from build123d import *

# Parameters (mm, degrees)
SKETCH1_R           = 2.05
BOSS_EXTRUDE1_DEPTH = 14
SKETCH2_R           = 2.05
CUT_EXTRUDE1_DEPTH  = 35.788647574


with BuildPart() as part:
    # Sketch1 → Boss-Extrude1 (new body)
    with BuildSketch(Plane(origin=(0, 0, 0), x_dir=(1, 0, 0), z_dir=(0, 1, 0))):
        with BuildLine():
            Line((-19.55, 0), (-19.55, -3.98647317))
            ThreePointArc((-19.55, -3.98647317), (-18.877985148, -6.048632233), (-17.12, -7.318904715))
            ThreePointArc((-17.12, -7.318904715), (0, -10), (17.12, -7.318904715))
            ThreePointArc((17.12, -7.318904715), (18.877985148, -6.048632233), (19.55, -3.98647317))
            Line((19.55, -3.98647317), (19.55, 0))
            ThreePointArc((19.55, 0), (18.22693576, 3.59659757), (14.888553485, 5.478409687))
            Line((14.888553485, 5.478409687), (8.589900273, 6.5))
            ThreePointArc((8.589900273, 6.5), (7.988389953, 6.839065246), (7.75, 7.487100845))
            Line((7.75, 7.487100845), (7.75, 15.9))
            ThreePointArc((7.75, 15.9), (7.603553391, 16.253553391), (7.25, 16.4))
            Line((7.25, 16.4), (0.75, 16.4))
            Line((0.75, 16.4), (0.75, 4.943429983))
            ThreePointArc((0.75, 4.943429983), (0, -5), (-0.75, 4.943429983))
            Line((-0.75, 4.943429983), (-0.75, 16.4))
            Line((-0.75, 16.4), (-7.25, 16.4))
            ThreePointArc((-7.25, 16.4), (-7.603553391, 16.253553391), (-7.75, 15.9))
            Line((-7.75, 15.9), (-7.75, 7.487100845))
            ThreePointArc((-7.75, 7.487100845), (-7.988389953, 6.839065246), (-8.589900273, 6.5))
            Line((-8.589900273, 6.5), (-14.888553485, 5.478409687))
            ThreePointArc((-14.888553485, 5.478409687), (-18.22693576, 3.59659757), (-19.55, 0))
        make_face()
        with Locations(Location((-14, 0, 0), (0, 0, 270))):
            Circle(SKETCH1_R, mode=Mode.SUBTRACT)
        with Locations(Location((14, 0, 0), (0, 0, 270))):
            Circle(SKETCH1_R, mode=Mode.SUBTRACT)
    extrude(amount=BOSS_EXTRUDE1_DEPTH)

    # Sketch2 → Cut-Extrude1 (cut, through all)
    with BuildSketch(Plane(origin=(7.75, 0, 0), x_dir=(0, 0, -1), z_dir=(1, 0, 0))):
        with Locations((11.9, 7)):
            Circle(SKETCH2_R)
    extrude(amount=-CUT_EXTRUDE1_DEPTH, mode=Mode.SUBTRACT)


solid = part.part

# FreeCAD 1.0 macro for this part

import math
import FreeCAD as App
import Part
import Sketcher

V = App.Vector

doc = App.newDocument("Part")
body = doc.addObject("PartDesign::Body", "Body")

sketch1 = body.newObject("Sketcher::SketchObject", "Sketch")
sketch1.AttachmentSupport = (doc.getObject("XZ_Plane"), [""])
sketch1.MapMode = "FlatFace"
sketch1.addGeometry([
    Part.LineSegment(V(-19.55, 0, 0), V(-19.55, 3.986473, 0)),
    Part.ArcOfCircle(Part.Circle(V(-16.05, 3.986473, 0), V(0, 0, 1), 3.5), math.radians(107.801142), math.radians(180)),
    Part.ArcOfCircle(Part.Circle(V(0, -46, 0), V(0, 0, 1), 56), math.radians(72.198858), math.radians(107.801142)),
    Part.ArcOfCircle(Part.Circle(V(16.05, 3.986473, 0), V(0, 0, 1), 3.5), math.radians(0), math.radians(72.198858)),
    Part.LineSegment(V(19.55, 3.986473, 0), V(19.55, 0, 0)),
    Part.ArcOfCircle(Part.Circle(V(14, 0, 0), V(0, 0, 1), 5.55), math.radians(-80.787315), math.radians(0)),
    Part.LineSegment(V(14.888553, -5.47841, 0), V(8.5899, -6.5, 0)),
    Part.ArcOfCircle(Part.Circle(V(8.75, -7.487101, 0), V(0, 0, 1), 1), math.radians(99.212685), math.radians(180)),
    Part.LineSegment(V(7.75, -7.487101, 0), V(7.75, -15.9, 0)),
    Part.ArcOfCircle(Part.Circle(V(7.25, -15.9, 0), V(0, 0, 1), 0.5), math.radians(-90), math.radians(0)),
    Part.LineSegment(V(7.25, -16.4, 0), V(0.75, -16.4, 0)),
    Part.LineSegment(V(0.75, -16.4, 0), V(0.75, -4.94343, 0)),
    Part.ArcOfCircle(Part.Circle(V(0, 0, 0), V(0, 0, 1), 5), math.radians(-81.373073), math.radians(261.373073)),
    Part.LineSegment(V(-0.75, -4.94343, 0), V(-0.75, -16.4, 0)),
    Part.LineSegment(V(-0.75, -16.4, 0), V(-7.25, -16.4, 0)),
    Part.ArcOfCircle(Part.Circle(V(-7.25, -15.9, 0), V(0, 0, 1), 0.5), math.radians(180), math.radians(270)),
    Part.LineSegment(V(-7.75, -15.9, 0), V(-7.75, -7.487101, 0)),
    Part.ArcOfCircle(Part.Circle(V(-8.75, -7.487101, 0), V(0, 0, 1), 1), math.radians(0), math.radians(80.787315)),
    Part.LineSegment(V(-8.5899, -6.5, 0), V(-14.888553, -5.47841, 0)),
    Part.ArcOfCircle(Part.Circle(V(-14, 0, 0), V(0, 0, 1), 5.55), math.radians(180), math.radians(260.787315)),
    Part.Circle(V(-14, 0, 0), V(0, 0, 1), 2.05),
    Part.Circle(V(14, 0, 0), V(0, 0, 1), 2.05),
], False)
sketch1.addConstraint([
    Sketcher.Constraint("Tangent", 0, 2, 1, 2),
    Sketcher.Constraint("Tangent", 1, 1, 2, 2),
    Sketcher.Constraint("Tangent", 2, 1, 3, 2),
    Sketcher.Constraint("Tangent", 3, 1, 4, 1),
    Sketcher.Constraint("Tangent", 4, 2, 5, 2),
    Sketcher.Constraint("Tangent", 5, 1, 6, 1),
    Sketcher.Constraint("Tangent", 6, 2, 7, 1),
    Sketcher.Constraint("Tangent", 7, 2, 8, 1),
    Sketcher.Constraint("Tangent", 8, 2, 9, 2),
    Sketcher.Constraint("Tangent", 9, 1, 10, 1),
    Sketcher.Constraint("Coincident", 10, 2, 11, 1),
    Sketcher.Constraint("Coincident", 11, 2, 12, 1),
    Sketcher.Constraint("Coincident", 12, 2, 13, 1),
    Sketcher.Constraint("Coincident", 13, 2, 14, 1),
    Sketcher.Constraint("Tangent", 14, 2, 15, 2),
    Sketcher.Constraint("Tangent", 15, 1, 16, 1),
    Sketcher.Constraint("Tangent", 16, 2, 17, 1),
    Sketcher.Constraint("Tangent", 17, 2, 18, 1),
    Sketcher.Constraint("Tangent", 18, 2, 19, 2),
    Sketcher.Constraint("Tangent", 19, 1, 0, 1),
    Sketcher.Constraint("Vertical", 0),
    Sketcher.Constraint("Vertical", 4),
    Sketcher.Constraint("Vertical", 8),
    Sketcher.Constraint("Horizontal", 10),
    Sketcher.Constraint("Vertical", 11),
    Sketcher.Constraint("Vertical", 13),
    Sketcher.Constraint("Horizontal", 14),
    Sketcher.Constraint("Vertical", 16),
    Sketcher.Constraint("Coincident", 12, 3, -1, 1),
    Sketcher.Constraint("Coincident", 20, 3, 19, 3),
    Sketcher.Constraint("Coincident", 21, 3, 5, 3),
    Sketcher.Constraint("Equal", 1, 3),
    Sketcher.Constraint("Equal", 9, 15),
    Sketcher.Constraint("Equal", 7, 17),
    Sketcher.Constraint("Equal", 5, 19),
    Sketcher.Constraint("Equal", 20, 21),
    Sketcher.Constraint("Symmetric", 5, 3, 19, 3, -1, 1),
    Sketcher.Constraint("Symmetric", 9, 3, 15, 3, -2),
    Sketcher.Constraint("Symmetric", 6, 2, 17, 2, -2),
    Sketcher.Constraint("PointOnObject", 2, 3, -2),
    Sketcher.Constraint("Horizontal", 11, 2, 12, 2),
    Sketcher.Constraint("Radius", 2, 56.0),
    Sketcher.Constraint("Radius", 7, 1.0),
    Sketcher.Constraint("Radius", 12, 5.0),
    Sketcher.Constraint("Diameter", 20, 4.1),
    Sketcher.Constraint("Radius", 1, 3.5),
    Sketcher.Constraint("Radius", 9, 0.5),
    Sketcher.Constraint("Radius", 5, 5.55),
    Sketcher.Constraint("DistanceX", 10, 2, 10, 1, 6.5),
    Sketcher.Constraint("DistanceY", 2, 3, -1, 1, 46.0),
    Sketcher.Constraint("DistanceX", -1, 1, 5, 3, 14.0),
    Sketcher.Constraint("DistanceX", 15, 3, 7, 3, 16.0),
    Sketcher.Constraint("DistanceY", 9, 3, -1, 1, 15.9),
    Sketcher.Constraint("DistanceY", 6, 2, -1, 1, 6.5),
])
pad1 = body.newObject("PartDesign::Pad", "Pad")
pad1.Profile = sketch1
pad1.Length = 14
pad1.Reversed = True

sketch2 = body.newObject("Sketcher::SketchObject", "Sketch001")
sketch2.AttachmentSupport = (doc.getObject("YZ_Plane"), [""])
sketch2.MapMode = "FlatFace"
sketch2.AttachmentOffset = App.Placement(V(0, 0, 7.75), App.Rotation())
sketch2.addGeometry(Part.Circle(V(7, -11.9, 0), V(0, 0, 1), 2.05), False)
sketch2.addConstraint([
    Sketcher.Constraint("Diameter", 0, 4.1),
    Sketcher.Constraint("DistanceX", -1, 1, 0, 3, 7.0),
    Sketcher.Constraint("DistanceY", 0, 3, -1, 1, 11.9),
])
pocket1 = body.newObject("PartDesign::Pocket", "Pocket")
pocket1.Profile = sketch2
pocket1.Type = "ThroughAll"

doc.recompute()
